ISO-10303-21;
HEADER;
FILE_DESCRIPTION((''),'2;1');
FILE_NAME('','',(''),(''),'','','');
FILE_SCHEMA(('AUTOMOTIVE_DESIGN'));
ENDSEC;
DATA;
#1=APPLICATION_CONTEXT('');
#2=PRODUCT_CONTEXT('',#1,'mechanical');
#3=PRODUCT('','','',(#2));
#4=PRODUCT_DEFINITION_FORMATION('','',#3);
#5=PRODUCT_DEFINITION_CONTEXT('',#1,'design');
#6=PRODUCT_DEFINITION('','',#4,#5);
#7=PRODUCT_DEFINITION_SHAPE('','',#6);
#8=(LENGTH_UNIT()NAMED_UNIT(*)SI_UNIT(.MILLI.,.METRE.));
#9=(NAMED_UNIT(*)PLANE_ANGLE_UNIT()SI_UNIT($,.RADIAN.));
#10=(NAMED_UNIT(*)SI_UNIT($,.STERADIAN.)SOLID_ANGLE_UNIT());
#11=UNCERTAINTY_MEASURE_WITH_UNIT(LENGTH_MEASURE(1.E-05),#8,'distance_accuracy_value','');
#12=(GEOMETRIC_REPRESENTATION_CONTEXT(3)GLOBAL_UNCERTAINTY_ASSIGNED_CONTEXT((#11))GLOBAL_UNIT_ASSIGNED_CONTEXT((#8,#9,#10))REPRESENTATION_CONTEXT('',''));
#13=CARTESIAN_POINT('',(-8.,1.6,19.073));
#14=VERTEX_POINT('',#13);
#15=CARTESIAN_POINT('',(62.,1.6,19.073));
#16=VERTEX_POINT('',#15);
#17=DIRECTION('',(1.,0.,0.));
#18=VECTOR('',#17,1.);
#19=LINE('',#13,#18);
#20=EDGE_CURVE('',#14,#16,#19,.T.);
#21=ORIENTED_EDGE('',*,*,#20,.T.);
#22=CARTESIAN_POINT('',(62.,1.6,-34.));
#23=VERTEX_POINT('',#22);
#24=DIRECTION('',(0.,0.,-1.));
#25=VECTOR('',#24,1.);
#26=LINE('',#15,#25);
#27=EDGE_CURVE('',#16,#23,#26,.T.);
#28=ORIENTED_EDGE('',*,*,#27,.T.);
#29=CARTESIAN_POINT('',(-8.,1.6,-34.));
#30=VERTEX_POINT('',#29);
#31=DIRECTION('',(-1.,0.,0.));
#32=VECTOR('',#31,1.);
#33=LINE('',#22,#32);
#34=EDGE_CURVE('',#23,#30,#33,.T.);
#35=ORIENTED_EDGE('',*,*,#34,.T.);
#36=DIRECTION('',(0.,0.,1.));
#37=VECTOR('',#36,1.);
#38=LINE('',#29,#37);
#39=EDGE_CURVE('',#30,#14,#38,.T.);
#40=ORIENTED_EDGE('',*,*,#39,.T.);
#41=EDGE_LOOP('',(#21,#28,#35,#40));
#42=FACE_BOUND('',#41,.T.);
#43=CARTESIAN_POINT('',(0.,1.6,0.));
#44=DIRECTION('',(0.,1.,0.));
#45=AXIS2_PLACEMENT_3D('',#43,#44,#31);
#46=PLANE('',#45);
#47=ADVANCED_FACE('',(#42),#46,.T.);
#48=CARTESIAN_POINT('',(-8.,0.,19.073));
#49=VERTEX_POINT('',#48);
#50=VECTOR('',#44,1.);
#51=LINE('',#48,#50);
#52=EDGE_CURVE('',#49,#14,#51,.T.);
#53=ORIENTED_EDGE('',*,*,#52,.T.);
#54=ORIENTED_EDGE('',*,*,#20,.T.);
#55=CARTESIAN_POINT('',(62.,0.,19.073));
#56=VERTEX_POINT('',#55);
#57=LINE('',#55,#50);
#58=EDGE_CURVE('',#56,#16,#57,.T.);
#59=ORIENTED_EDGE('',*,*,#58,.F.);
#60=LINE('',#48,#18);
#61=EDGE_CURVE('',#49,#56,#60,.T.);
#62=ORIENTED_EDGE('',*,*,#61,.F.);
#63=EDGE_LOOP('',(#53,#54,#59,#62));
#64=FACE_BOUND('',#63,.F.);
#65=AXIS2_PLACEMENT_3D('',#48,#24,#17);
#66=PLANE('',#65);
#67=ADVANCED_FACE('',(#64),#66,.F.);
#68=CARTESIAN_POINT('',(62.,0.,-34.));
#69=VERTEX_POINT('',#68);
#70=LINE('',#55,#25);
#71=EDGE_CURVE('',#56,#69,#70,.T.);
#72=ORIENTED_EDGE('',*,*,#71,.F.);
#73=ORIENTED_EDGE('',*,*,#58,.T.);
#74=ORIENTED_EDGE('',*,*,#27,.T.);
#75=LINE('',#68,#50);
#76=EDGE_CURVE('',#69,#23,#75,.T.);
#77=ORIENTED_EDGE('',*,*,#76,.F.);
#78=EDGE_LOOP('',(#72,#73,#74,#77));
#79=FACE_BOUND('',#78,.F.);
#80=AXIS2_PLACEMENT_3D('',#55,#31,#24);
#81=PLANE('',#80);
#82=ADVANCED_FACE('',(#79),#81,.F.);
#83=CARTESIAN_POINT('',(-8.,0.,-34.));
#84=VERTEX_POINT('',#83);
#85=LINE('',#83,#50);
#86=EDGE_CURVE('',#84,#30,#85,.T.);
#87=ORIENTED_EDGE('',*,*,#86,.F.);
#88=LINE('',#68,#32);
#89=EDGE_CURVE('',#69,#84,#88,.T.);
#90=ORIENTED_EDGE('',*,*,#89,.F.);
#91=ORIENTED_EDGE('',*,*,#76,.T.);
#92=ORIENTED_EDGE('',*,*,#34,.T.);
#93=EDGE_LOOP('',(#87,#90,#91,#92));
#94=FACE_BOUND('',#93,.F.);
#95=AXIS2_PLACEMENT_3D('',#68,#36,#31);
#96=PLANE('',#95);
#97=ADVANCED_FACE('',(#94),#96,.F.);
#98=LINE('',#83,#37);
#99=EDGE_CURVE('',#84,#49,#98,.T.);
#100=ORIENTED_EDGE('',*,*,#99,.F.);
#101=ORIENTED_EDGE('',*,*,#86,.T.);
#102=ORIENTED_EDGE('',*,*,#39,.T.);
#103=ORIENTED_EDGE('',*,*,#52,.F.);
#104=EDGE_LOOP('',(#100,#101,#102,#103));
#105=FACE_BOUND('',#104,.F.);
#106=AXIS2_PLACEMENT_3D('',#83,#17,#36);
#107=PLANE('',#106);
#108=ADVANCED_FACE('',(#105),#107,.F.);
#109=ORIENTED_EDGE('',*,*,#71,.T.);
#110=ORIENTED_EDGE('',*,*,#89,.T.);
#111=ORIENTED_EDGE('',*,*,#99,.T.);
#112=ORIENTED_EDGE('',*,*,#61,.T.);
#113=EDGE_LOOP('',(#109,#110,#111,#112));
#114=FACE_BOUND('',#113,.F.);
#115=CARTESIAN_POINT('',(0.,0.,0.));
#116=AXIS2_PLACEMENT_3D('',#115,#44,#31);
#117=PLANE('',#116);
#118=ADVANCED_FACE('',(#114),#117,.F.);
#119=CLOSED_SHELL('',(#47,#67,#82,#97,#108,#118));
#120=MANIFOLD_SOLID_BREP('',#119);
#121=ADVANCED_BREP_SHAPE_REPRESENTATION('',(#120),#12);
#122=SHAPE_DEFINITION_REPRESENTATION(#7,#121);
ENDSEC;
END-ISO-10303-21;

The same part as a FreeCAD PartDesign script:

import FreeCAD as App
import Part
import Sketcher

V = App.Vector
Q = App.Units.Quantity


def add_polygon(sketch, points):
    """Adds a closed chain of lines whose ends are joined by coincident constraints."""
    first, n = sketch.GeometryCount, len(points)
    for a, b in zip(points, points[1:] + points[:1]):
        sketch.addGeometry(Part.LineSegment(App.Vector(*a, 0), App.Vector(*b, 0)), False)
    for i in range(n):
        sketch.addConstraint(Sketcher.Constraint("Coincident", first + i, 2, first + (i + 1) % n, 1))

doc = App.newDocument("Part")
body = doc.addObject("PartDesign::Body", "Body")

# Sketch on XZ plane
sketch1 = body.newObject("Sketcher::SketchObject", "Sketch")
sketch1.AttachmentSupport = (doc.getObject("XZ_Plane"), [""])
sketch1.MapMode = "FlatFace"
add_polygon(sketch1, [(-8, -34), (-8, 19), (62, 19), (62, -34)])  # lines 0-3
sketch1.addConstraint([
    Sketcher.Constraint("Vertical", 0),
    Sketcher.Constraint("Horizontal", 1),
    Sketcher.Constraint("Vertical", 2),
    Sketcher.Constraint("Horizontal", 3),
    Sketcher.Constraint("DistanceX", 1, 1, 1, 2, Q("2.7559 in")),
    Sketcher.Constraint("DistanceY", 0, 1, 0, 2, Q("2.0895 in")),
    Sketcher.Constraint("DistanceY", -1, 1, 0, 2, Q("0.7509 in")),
    Sketcher.Constraint("DistanceX", 0, 2, -1, 1, 8.0),
])
pad1 = body.newObject("PartDesign::Pad", "Pad")
pad1.Profile = sketch1
pad1.Length = Q("0.0629921 in")
pad1.Reversed = True

doc.recompute()
